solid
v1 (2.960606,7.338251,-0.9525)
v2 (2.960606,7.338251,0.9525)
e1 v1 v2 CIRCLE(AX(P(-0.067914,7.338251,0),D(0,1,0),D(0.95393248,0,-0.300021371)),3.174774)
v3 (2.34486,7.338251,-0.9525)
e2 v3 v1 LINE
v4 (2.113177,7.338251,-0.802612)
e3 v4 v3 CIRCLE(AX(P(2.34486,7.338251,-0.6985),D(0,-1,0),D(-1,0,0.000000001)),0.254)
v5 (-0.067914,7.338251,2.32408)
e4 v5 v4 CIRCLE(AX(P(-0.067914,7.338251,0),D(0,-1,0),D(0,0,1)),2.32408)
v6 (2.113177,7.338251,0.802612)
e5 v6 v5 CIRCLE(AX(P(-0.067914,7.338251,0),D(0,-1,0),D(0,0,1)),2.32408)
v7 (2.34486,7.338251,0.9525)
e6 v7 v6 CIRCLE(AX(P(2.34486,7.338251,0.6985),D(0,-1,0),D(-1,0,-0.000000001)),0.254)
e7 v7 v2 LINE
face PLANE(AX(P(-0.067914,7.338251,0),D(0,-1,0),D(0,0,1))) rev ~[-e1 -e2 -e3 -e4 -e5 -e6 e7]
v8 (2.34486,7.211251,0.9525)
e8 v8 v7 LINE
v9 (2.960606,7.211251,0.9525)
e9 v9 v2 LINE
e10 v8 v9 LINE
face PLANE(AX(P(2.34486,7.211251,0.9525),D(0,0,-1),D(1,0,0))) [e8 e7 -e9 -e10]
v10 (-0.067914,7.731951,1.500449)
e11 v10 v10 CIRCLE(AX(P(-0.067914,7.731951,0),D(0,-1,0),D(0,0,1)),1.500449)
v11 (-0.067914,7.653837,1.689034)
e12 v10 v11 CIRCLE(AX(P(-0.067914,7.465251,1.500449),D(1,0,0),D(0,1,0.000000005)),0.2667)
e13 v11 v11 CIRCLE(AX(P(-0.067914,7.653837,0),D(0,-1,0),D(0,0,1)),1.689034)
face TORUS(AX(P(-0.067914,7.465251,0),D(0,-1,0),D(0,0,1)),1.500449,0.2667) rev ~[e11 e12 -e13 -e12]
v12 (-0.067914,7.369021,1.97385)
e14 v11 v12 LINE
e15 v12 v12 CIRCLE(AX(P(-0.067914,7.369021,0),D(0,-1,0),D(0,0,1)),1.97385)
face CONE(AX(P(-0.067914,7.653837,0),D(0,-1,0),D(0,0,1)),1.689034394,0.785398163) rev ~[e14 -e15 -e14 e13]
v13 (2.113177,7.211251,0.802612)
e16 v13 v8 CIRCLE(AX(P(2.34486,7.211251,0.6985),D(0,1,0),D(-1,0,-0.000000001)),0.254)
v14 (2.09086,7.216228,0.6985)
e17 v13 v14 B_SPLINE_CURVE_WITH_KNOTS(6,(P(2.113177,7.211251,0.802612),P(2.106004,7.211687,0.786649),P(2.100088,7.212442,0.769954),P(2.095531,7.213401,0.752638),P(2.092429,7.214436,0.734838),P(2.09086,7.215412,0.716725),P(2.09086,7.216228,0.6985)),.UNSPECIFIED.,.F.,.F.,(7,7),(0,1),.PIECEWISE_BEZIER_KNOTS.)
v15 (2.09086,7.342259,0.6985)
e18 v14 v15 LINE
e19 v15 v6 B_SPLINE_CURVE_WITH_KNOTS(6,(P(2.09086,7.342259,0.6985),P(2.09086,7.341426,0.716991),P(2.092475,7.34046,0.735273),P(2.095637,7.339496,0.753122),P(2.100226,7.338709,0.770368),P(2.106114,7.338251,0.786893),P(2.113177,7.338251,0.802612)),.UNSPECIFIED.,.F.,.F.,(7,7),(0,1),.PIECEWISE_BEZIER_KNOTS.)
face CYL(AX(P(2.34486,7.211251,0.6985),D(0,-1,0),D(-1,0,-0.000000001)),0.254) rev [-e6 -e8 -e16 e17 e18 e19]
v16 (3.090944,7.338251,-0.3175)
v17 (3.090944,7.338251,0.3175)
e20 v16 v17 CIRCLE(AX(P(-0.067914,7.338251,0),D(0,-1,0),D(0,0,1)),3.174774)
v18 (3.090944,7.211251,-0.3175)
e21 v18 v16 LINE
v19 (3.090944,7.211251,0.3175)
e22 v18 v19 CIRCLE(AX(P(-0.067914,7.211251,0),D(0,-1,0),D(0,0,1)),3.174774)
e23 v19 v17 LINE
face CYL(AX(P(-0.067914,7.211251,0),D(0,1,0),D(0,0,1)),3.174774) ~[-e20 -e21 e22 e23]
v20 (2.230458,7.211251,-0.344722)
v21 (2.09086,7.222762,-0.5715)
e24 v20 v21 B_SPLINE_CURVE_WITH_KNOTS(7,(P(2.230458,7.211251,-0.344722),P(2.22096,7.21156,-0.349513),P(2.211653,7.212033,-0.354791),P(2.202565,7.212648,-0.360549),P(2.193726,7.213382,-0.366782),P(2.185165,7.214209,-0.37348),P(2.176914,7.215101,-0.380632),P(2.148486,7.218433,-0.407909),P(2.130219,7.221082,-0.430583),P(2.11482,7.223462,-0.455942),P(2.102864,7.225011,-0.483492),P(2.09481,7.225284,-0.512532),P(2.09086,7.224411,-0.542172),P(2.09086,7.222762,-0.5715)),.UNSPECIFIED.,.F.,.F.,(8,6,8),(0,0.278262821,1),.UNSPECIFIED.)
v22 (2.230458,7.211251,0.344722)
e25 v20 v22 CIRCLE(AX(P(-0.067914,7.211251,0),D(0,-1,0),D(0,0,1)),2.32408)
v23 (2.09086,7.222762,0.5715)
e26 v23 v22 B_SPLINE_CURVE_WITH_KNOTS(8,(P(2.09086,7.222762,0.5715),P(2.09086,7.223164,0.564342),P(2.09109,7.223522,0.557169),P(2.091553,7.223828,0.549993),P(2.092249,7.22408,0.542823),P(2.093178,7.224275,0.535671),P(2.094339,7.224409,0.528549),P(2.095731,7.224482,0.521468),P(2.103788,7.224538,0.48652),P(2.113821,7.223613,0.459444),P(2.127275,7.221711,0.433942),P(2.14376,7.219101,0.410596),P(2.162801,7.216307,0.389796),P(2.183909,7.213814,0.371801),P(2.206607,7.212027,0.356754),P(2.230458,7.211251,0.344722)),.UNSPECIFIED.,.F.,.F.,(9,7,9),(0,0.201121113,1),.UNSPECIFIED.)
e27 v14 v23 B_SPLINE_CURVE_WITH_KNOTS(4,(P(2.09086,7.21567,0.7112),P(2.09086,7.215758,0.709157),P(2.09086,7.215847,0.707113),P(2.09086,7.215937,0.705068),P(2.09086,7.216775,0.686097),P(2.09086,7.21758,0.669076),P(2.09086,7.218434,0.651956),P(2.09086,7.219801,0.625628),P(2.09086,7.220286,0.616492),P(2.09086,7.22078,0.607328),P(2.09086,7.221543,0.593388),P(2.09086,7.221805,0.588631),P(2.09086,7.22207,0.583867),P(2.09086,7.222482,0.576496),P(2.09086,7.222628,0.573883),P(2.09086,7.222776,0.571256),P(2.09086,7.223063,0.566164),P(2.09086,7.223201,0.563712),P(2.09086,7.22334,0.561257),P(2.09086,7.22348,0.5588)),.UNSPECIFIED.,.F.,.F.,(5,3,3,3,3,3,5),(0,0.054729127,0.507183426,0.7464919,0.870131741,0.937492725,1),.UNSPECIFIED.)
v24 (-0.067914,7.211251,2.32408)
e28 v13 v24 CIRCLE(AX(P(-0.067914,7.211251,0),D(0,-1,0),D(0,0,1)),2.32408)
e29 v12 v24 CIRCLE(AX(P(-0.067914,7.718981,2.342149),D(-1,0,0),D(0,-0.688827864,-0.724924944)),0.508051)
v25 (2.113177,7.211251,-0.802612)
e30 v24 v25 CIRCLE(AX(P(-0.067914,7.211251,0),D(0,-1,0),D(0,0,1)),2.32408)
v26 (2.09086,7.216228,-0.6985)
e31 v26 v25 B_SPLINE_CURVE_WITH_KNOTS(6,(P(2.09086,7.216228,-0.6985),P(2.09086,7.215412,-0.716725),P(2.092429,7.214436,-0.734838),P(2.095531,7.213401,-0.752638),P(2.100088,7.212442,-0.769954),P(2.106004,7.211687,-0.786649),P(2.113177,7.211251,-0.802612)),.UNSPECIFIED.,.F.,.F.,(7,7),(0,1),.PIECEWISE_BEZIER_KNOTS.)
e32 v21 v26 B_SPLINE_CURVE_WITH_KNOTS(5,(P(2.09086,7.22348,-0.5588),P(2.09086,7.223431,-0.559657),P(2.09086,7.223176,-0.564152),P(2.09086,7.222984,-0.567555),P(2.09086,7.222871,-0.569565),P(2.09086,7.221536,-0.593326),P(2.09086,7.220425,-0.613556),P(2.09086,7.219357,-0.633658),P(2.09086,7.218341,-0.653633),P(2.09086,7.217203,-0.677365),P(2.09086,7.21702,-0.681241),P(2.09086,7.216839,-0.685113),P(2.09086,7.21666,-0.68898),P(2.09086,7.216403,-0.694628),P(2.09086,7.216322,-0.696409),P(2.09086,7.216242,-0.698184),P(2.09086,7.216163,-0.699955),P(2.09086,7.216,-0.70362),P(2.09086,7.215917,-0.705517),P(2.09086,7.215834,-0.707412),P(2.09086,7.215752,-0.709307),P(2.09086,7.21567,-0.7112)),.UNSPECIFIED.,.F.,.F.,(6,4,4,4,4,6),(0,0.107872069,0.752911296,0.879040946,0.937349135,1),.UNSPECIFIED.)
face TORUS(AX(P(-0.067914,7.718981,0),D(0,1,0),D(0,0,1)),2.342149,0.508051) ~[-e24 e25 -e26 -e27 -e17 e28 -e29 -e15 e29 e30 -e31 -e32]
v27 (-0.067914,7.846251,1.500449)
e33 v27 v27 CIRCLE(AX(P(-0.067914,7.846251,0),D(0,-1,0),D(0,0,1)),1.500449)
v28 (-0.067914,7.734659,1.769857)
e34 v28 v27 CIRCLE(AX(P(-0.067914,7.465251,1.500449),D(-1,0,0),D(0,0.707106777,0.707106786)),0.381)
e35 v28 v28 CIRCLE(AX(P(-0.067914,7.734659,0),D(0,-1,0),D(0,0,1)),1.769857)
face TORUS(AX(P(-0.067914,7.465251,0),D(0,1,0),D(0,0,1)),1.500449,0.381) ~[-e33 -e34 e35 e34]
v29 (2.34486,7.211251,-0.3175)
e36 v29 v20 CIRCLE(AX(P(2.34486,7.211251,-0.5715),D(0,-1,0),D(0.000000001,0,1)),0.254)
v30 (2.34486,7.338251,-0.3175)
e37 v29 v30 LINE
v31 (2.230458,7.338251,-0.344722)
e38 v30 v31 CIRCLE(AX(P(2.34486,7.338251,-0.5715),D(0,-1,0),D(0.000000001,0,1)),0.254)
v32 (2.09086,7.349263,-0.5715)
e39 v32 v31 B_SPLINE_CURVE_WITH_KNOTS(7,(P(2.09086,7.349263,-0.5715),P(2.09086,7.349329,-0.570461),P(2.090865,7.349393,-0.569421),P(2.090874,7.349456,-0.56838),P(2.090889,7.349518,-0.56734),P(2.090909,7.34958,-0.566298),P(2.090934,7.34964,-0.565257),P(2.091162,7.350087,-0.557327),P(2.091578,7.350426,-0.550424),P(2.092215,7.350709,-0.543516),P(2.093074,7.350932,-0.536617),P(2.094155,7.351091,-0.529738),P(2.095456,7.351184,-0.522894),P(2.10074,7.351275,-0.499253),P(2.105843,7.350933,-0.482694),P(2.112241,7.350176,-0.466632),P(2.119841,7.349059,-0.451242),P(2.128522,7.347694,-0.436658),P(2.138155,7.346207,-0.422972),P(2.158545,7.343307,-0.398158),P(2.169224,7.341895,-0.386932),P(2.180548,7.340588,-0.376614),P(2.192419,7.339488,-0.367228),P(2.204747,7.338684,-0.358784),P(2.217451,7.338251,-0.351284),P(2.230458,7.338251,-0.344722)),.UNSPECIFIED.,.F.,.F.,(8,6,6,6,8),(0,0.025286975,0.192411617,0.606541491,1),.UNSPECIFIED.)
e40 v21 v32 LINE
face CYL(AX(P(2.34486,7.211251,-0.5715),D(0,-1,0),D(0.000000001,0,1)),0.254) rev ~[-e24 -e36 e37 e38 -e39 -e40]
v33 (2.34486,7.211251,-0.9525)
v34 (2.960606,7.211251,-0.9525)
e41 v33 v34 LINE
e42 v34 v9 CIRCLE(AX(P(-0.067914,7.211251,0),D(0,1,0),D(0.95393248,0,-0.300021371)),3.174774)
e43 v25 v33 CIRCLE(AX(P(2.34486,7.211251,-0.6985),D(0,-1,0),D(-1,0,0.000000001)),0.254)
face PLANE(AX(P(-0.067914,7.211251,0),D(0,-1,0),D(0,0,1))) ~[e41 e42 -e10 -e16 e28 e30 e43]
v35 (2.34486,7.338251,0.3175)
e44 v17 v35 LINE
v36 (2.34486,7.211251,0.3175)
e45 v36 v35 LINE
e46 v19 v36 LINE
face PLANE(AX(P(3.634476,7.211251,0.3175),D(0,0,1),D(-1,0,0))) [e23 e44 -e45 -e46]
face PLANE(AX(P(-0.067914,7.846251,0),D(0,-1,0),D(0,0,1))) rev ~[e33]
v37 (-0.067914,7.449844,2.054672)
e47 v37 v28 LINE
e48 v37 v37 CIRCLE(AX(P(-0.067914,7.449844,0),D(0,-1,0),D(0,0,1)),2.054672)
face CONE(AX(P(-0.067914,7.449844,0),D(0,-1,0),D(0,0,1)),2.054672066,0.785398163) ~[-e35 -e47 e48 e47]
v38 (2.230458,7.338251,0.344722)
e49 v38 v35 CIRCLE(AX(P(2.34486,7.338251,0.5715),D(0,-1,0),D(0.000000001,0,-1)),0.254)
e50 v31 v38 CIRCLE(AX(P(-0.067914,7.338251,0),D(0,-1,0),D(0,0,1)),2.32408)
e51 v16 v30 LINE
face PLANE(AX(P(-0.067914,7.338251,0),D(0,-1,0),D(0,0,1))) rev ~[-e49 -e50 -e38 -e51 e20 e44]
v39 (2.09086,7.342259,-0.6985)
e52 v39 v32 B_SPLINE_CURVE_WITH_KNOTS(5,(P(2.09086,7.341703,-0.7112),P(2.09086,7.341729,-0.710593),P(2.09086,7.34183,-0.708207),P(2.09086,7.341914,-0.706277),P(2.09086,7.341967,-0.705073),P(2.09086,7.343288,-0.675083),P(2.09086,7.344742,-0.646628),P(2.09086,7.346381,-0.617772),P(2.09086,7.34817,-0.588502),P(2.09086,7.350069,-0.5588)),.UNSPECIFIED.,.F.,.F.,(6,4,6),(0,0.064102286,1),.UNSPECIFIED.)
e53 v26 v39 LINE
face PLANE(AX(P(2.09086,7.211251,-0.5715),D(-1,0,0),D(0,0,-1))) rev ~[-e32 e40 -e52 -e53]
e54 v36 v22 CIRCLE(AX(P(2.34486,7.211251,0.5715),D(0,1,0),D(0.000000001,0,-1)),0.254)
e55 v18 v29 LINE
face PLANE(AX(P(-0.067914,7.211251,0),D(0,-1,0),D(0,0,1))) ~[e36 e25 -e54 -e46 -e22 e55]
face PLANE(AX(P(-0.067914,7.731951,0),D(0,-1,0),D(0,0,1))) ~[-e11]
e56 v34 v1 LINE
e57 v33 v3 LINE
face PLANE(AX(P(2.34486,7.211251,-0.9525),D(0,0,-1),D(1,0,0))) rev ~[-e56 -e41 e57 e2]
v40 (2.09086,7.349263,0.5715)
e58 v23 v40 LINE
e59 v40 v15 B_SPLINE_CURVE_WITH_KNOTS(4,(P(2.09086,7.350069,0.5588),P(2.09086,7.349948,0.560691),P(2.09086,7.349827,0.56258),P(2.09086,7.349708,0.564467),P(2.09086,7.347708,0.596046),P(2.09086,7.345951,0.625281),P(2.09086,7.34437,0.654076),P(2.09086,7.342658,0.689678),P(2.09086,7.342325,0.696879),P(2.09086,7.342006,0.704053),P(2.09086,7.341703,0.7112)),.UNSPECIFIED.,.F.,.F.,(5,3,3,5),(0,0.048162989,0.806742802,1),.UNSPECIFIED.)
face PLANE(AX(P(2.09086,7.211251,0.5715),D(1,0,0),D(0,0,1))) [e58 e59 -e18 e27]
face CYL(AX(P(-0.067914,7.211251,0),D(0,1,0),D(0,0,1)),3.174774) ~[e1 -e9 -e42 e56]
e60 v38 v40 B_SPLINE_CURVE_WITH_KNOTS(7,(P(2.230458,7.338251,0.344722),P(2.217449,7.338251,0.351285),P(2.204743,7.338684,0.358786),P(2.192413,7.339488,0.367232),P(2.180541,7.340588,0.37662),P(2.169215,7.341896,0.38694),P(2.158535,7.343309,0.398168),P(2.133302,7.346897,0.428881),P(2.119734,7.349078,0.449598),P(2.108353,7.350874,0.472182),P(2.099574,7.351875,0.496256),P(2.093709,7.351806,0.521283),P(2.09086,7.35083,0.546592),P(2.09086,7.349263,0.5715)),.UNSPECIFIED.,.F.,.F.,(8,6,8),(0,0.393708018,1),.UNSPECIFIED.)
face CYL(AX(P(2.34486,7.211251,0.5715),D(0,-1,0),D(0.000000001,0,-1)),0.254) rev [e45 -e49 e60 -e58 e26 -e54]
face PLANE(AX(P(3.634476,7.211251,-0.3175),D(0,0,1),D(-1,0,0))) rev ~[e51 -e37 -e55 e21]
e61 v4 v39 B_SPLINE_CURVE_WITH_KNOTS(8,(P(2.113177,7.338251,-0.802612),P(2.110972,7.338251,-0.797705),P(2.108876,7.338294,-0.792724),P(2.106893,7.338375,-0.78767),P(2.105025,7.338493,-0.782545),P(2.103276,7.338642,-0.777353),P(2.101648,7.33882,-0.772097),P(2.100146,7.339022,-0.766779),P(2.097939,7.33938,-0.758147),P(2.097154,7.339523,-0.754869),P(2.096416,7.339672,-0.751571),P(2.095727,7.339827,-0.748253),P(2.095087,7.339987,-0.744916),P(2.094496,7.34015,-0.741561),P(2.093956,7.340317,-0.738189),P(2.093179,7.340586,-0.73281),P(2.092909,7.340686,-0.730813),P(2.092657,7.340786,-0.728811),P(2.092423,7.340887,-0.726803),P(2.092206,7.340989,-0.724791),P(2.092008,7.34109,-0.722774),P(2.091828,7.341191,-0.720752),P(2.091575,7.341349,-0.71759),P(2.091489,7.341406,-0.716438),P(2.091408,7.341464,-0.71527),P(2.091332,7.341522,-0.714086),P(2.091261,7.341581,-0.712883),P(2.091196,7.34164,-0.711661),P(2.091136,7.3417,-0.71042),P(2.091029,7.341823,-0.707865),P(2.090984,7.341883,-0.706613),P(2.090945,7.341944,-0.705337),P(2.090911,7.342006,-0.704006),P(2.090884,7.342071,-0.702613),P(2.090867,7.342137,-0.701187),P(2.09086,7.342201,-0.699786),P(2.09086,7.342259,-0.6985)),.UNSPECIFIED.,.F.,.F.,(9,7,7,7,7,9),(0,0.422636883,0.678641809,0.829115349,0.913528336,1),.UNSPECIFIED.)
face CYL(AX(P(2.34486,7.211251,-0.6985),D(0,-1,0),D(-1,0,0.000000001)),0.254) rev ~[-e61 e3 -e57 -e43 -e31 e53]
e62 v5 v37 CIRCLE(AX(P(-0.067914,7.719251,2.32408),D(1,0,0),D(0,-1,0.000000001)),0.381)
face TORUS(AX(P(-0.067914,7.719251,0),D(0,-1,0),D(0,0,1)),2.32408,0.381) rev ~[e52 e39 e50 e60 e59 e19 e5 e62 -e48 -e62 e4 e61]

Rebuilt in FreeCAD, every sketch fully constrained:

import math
import FreeCAD as App
import Part
import Sketcher
Q = App.Units.Quantity

doc = App.newDocument("Part")
body = doc.addObject("PartDesign::Body", "Body")

# Sketch on XY plane
sketch1 = body.newObject("Sketcher::SketchObject", "Sketch")
sketch1.AttachmentSupport = (doc.getObject("XY_Plane"), [""])
sketch1.MapMode = "FlatFace"
sketch1.addGeometry(Part.LineSegment(App.Vector(1.43, 7.85, 0), App.Vector(-0.07, 7.85, 0)), False)
sketch1.addGeometry(Part.LineSegment(App.Vector(-0.07, 7.85, 0), App.Vector(-0.07, 7.73, 0)), False)
sketch1.addGeometry(Part.LineSegment(App.Vector(-0.07, 7.73, 0), App.Vector(1.43, 7.73, 0)), False)
sketch1.addGeometry(Part.ArcOfCircle(Part.Circle(App.Vector(1.43, 7.47, 0), App.Vector(0, 0, 1), 0.27), math.radians(45), math.radians(90)), False)
sketch1.addGeometry(Part.LineSegment(App.Vector(1.62, 7.65, 0), App.Vector(1.91, 7.37, 0)), False)
sketch1.addGeometry(Part.ArcOfCircle(Part.Circle(App.Vector(2.27, 7.72, 0), App.Vector(0, 0, 1), 0.51), math.radians(-136), math.radians(-92)), False)
sketch1.addGeometry(Part.LineSegment(App.Vector(2.26, 7.21, 0), App.Vector(3.11, 7.21, 0)), False)
sketch1.addGeometry(Part.LineSegment(App.Vector(3.11, 7.21, 0), App.Vector(3.11, 7.34, 0)), False)
sketch1.addGeometry(Part.LineSegment(App.Vector(3.11, 7.34, 0), App.Vector(2.26, 7.34, 0)), False)
sketch1.addGeometry(Part.ArcOfCircle(Part.Circle(App.Vector(2.26, 7.72, 0), App.Vector(0, 0, 1), 0.38), math.radians(-135), math.radians(-90)), False)
sketch1.addGeometry(Part.LineSegment(App.Vector(1.99, 7.45, 0), App.Vector(1.7, 7.73, 0)), False)
sketch1.addGeometry(Part.ArcOfCircle(Part.Circle(App.Vector(1.43, 7.47, 0), App.Vector(0, 0, 1), 0.38), math.radians(45), math.radians(90)), False)
sketch1.addGeometry(Part.LineSegment(App.Vector(-0.07, 7.85, 0), App.Vector(-0.07, 7.21, 0)), True)  # axis
sketch1.addConstraint(Sketcher.Constraint("Coincident", 0, 2, 1, 1))
sketch1.addConstraint(Sketcher.Constraint("Coincident", 1, 2, 2, 1))
sketch1.addConstraint(Sketcher.Constraint("Tangent", 2, 2, 3, 2))
sketch1.addConstraint(Sketcher.Constraint("Tangent", 3, 1, 4, 1))
sketch1.addConstraint(Sketcher.Constraint("Coincident", 4, 2, 5, 1))
sketch1.addConstraint(Sketcher.Constraint("Coincident", 5, 2, 6, 1))
sketch1.addConstraint(Sketcher.Constraint("Coincident", 6, 2, 7, 1))
sketch1.addConstraint(Sketcher.Constraint("Coincident", 7, 2, 8, 1))
sketch1.addConstraint(Sketcher.Constraint("Tangent", 8, 2, 9, 2))
sketch1.addConstraint(Sketcher.Constraint("Tangent", 9, 1, 10, 1))
sketch1.addConstraint(Sketcher.Constraint("Tangent", 10, 2, 11, 1))
sketch1.addConstraint(Sketcher.Constraint("Tangent", 11, 2, 0, 1))
sketch1.addConstraint(Sketcher.Constraint("Horizontal", 0))
sketch1.addConstraint(Sketcher.Constraint("Vertical", 1))
sketch1.addConstraint(Sketcher.Constraint("Horizontal", 2))
sketch1.addConstraint(Sketcher.Constraint("Horizontal", 6))
sketch1.addConstraint(Sketcher.Constraint("Vertical", 7))
sketch1.addConstraint(Sketcher.Constraint("Horizontal", 8))
sketch1.addConstraint(Sketcher.Constraint("Vertical", 12))
sketch1.addConstraint(Sketcher.Constraint("Coincident", 11, 3, 3, 3))
sketch1.addConstraint(Sketcher.Constraint("Coincident", 12, 1, 0, 2))
sketch1.addConstraint(Sketcher.Constraint("Equal", 9, 11))
sketch1.addConstraint(Sketcher.Constraint("Parallel", 4, 10))
sketch1.addConstraint(Sketcher.Constraint("Horizontal", 6, 2, 12, 2))
sketch1.addConstraint(Sketcher.Constraint("Vertical", 9, 3, 5, 2))
sketch1.addConstraint(Sketcher.Constraint("Equal", 4, 10))
sketch1.addConstraint(Sketcher.Constraint("Angle", 4, Q("-45 deg")))
sketch1.addConstraint(Sketcher.Constraint("Radius", 9, Q("0.015 in")))
sketch1.addConstraint(Sketcher.Constraint("Radius", 3, Q("0.0105 in")))
sketch1.addConstraint(Sketcher.Constraint("DistanceY", 7, 1, 7, 2, Q("0.005 in")))
sketch1.addConstraint(Sketcher.Constraint("DistanceY", 12, 2, 12, 1, Q("0.025 in")))
sketch1.addConstraint(Sketcher.Constraint("Radius", 5, Q("0.508051 mm")))
sketch1.addConstraint(Sketcher.Constraint("DistanceX", 0, 2, 0, 1, Q("1.500449 mm")))
sketch1.addConstraint(Sketcher.Constraint("DistanceX", 6, 1, 6, 2, Q("0.850694 mm")))
sketch1.addConstraint(Sketcher.Constraint("DistanceY", -1, 1, 3, 3, Q("7.465251 mm")))
sketch1.addConstraint(Sketcher.Constraint("DistanceX", -1, 1, 3, 1, Q("1.62112 mm")))
revolution = body.newObject("PartDesign::Revolution", "Revolution")
revolution.Profile = sketch1
revolution.ReferenceAxis = (sketch1, ["Axis0"])
revolution.Angle = 360

# Sketch on XZ plane
sketch2 = body.newObject("Sketcher::SketchObject", "Sketch001")
sketch2.AttachmentSupport = (doc.getObject("XZ_Plane"), [""])
sketch2.MapMode = "FlatFace"
sketch2.AttachmentOffset = App.Placement(App.Vector(0, 0, -7.211251), App.Rotation())
sketch2.addGeometry(Part.LineSegment(App.Vector(2.09, -0.57, 0), App.Vector(2.09, -0.7, 0)), False)
sketch2.addGeometry(Part.ArcOfCircle(Part.Circle(App.Vector(2.34, -0.7, 0), App.Vector(0, 0, 1), 0.25), math.radians(180), math.radians(270)), False)
sketch2.addGeometry(Part.LineSegment(App.Vector(2.34, -0.95, 0), App.Vector(3.63, -0.95, 0)), False)
sketch2.addGeometry(Part.LineSegment(App.Vector(3.63, -0.95, 0), App.Vector(3.63, -0.32, 0)), False)
sketch2.addGeometry(Part.LineSegment(App.Vector(3.63, -0.32, 0), App.Vector(2.34, -0.32, 0)), False)
sketch2.addGeometry(Part.ArcOfCircle(Part.Circle(App.Vector(2.34, -0.57, 0), App.Vector(0, 0, 1), 0.25), math.radians(90), math.radians(180)), False)
sketch2.addGeometry(Part.LineSegment(App.Vector(3.63, 0.95, 0), App.Vector(2.34, 0.95, 0)), False)
sketch2.addGeometry(Part.ArcOfCircle(Part.Circle(App.Vector(2.34, 0.7, 0), App.Vector(0, 0, 1), 0.25), math.radians(90), math.radians(180)), False)
sketch2.addGeometry(Part.LineSegment(App.Vector(2.09, 0.7, 0), App.Vector(2.09, 0.57, 0)), False)
sketch2.addGeometry(Part.ArcOfCircle(Part.Circle(App.Vector(2.34, 0.57, 0), App.Vector(0, 0, 1), 0.25), math.radians(180), math.radians(270)), False)
sketch2.addGeometry(Part.LineSegment(App.Vector(2.34, 0.32, 0), App.Vector(3.63, 0.32, 0)), False)
sketch2.addGeometry(Part.LineSegment(App.Vector(3.63, 0.32, 0), App.Vector(3.63, 0.95, 0)), False)
sketch2.addConstraint(Sketcher.Constraint("Tangent", 0, 2, 1, 1))
sketch2.addConstraint(Sketcher.Constraint("Tangent", 1, 2, 2, 1))
sketch2.addConstraint(Sketcher.Constraint("Coincident", 2, 2, 3, 1))
sketch2.addConstraint(Sketcher.Constraint("Coincident", 3, 2, 4, 1))
sketch2.addConstraint(Sketcher.Constraint("Tangent", 4, 2, 5, 1))
sketch2.addConstraint(Sketcher.Constraint("Tangent", 5, 2, 0, 1))
sketch2.addConstraint(Sketcher.Constraint("Tangent", 6, 2, 7, 1))
sketch2.addConstraint(Sketcher.Constraint("Tangent", 7, 2, 8, 1))
sketch2.addConstraint(Sketcher.Constraint("Tangent", 8, 2, 9, 1))
sketch2.addConstraint(Sketcher.Constraint("Tangent", 9, 2, 10, 1))
sketch2.addConstraint(Sketcher.Constraint("Coincident", 10, 2, 11, 1))
sketch2.addConstraint(Sketcher.Constraint("Coincident", 11, 2, 6, 1))
sketch2.addConstraint(Sketcher.Constraint("Vertical", 0))
sketch2.addConstraint(Sketcher.Constraint("Horizontal", 2))
sketch2.addConstraint(Sketcher.Constraint("Vertical", 3))
sketch2.addConstraint(Sketcher.Constraint("Horizontal", 4))
sketch2.addConstraint(Sketcher.Constraint("Horizontal", 6))
sketch2.addConstraint(Sketcher.Constraint("Vertical", 8))
sketch2.addConstraint(Sketcher.Constraint("Horizontal", 10))
sketch2.addConstraint(Sketcher.Constraint("Vertical", 11))
sketch2.addConstraint(Sketcher.Constraint("Equal", 1, 5))
sketch2.addConstraint(Sketcher.Constraint("Equal", 5, 7))
sketch2.addConstraint(Sketcher.Constraint("Equal", 7, 9))
sketch2.addConstraint(Sketcher.Constraint("Symmetric", 1, 3, 7, 3, -1))
sketch2.addConstraint(Sketcher.Constraint("Symmetric", 3, 2, 10, 2, -1))
sketch2.addConstraint(Sketcher.Constraint("Radius", 1, Q("0.01 in")))
sketch2.addConstraint(Sketcher.Constraint("DistanceY", 0, 2, 0, 1, Q("0.005 in")))
sketch2.addConstraint(Sketcher.Constraint("DistanceY", 5, 3, 7, 3, Q("0.05 in")))
sketch2.addConstraint(Sketcher.Constraint("DistanceX", 2, 1, 2, 2, Q("1.289616 mm")))
sketch2.addConstraint(Sketcher.Constraint("DistanceX", -1, 1, 1, 3, Q("2.34486 mm")))
pocket1 = body.newObject("PartDesign::Pocket", "Pocket")
pocket1.Profile = sketch2
pocket1.Type = "ThroughAll"

doc.recompute()
